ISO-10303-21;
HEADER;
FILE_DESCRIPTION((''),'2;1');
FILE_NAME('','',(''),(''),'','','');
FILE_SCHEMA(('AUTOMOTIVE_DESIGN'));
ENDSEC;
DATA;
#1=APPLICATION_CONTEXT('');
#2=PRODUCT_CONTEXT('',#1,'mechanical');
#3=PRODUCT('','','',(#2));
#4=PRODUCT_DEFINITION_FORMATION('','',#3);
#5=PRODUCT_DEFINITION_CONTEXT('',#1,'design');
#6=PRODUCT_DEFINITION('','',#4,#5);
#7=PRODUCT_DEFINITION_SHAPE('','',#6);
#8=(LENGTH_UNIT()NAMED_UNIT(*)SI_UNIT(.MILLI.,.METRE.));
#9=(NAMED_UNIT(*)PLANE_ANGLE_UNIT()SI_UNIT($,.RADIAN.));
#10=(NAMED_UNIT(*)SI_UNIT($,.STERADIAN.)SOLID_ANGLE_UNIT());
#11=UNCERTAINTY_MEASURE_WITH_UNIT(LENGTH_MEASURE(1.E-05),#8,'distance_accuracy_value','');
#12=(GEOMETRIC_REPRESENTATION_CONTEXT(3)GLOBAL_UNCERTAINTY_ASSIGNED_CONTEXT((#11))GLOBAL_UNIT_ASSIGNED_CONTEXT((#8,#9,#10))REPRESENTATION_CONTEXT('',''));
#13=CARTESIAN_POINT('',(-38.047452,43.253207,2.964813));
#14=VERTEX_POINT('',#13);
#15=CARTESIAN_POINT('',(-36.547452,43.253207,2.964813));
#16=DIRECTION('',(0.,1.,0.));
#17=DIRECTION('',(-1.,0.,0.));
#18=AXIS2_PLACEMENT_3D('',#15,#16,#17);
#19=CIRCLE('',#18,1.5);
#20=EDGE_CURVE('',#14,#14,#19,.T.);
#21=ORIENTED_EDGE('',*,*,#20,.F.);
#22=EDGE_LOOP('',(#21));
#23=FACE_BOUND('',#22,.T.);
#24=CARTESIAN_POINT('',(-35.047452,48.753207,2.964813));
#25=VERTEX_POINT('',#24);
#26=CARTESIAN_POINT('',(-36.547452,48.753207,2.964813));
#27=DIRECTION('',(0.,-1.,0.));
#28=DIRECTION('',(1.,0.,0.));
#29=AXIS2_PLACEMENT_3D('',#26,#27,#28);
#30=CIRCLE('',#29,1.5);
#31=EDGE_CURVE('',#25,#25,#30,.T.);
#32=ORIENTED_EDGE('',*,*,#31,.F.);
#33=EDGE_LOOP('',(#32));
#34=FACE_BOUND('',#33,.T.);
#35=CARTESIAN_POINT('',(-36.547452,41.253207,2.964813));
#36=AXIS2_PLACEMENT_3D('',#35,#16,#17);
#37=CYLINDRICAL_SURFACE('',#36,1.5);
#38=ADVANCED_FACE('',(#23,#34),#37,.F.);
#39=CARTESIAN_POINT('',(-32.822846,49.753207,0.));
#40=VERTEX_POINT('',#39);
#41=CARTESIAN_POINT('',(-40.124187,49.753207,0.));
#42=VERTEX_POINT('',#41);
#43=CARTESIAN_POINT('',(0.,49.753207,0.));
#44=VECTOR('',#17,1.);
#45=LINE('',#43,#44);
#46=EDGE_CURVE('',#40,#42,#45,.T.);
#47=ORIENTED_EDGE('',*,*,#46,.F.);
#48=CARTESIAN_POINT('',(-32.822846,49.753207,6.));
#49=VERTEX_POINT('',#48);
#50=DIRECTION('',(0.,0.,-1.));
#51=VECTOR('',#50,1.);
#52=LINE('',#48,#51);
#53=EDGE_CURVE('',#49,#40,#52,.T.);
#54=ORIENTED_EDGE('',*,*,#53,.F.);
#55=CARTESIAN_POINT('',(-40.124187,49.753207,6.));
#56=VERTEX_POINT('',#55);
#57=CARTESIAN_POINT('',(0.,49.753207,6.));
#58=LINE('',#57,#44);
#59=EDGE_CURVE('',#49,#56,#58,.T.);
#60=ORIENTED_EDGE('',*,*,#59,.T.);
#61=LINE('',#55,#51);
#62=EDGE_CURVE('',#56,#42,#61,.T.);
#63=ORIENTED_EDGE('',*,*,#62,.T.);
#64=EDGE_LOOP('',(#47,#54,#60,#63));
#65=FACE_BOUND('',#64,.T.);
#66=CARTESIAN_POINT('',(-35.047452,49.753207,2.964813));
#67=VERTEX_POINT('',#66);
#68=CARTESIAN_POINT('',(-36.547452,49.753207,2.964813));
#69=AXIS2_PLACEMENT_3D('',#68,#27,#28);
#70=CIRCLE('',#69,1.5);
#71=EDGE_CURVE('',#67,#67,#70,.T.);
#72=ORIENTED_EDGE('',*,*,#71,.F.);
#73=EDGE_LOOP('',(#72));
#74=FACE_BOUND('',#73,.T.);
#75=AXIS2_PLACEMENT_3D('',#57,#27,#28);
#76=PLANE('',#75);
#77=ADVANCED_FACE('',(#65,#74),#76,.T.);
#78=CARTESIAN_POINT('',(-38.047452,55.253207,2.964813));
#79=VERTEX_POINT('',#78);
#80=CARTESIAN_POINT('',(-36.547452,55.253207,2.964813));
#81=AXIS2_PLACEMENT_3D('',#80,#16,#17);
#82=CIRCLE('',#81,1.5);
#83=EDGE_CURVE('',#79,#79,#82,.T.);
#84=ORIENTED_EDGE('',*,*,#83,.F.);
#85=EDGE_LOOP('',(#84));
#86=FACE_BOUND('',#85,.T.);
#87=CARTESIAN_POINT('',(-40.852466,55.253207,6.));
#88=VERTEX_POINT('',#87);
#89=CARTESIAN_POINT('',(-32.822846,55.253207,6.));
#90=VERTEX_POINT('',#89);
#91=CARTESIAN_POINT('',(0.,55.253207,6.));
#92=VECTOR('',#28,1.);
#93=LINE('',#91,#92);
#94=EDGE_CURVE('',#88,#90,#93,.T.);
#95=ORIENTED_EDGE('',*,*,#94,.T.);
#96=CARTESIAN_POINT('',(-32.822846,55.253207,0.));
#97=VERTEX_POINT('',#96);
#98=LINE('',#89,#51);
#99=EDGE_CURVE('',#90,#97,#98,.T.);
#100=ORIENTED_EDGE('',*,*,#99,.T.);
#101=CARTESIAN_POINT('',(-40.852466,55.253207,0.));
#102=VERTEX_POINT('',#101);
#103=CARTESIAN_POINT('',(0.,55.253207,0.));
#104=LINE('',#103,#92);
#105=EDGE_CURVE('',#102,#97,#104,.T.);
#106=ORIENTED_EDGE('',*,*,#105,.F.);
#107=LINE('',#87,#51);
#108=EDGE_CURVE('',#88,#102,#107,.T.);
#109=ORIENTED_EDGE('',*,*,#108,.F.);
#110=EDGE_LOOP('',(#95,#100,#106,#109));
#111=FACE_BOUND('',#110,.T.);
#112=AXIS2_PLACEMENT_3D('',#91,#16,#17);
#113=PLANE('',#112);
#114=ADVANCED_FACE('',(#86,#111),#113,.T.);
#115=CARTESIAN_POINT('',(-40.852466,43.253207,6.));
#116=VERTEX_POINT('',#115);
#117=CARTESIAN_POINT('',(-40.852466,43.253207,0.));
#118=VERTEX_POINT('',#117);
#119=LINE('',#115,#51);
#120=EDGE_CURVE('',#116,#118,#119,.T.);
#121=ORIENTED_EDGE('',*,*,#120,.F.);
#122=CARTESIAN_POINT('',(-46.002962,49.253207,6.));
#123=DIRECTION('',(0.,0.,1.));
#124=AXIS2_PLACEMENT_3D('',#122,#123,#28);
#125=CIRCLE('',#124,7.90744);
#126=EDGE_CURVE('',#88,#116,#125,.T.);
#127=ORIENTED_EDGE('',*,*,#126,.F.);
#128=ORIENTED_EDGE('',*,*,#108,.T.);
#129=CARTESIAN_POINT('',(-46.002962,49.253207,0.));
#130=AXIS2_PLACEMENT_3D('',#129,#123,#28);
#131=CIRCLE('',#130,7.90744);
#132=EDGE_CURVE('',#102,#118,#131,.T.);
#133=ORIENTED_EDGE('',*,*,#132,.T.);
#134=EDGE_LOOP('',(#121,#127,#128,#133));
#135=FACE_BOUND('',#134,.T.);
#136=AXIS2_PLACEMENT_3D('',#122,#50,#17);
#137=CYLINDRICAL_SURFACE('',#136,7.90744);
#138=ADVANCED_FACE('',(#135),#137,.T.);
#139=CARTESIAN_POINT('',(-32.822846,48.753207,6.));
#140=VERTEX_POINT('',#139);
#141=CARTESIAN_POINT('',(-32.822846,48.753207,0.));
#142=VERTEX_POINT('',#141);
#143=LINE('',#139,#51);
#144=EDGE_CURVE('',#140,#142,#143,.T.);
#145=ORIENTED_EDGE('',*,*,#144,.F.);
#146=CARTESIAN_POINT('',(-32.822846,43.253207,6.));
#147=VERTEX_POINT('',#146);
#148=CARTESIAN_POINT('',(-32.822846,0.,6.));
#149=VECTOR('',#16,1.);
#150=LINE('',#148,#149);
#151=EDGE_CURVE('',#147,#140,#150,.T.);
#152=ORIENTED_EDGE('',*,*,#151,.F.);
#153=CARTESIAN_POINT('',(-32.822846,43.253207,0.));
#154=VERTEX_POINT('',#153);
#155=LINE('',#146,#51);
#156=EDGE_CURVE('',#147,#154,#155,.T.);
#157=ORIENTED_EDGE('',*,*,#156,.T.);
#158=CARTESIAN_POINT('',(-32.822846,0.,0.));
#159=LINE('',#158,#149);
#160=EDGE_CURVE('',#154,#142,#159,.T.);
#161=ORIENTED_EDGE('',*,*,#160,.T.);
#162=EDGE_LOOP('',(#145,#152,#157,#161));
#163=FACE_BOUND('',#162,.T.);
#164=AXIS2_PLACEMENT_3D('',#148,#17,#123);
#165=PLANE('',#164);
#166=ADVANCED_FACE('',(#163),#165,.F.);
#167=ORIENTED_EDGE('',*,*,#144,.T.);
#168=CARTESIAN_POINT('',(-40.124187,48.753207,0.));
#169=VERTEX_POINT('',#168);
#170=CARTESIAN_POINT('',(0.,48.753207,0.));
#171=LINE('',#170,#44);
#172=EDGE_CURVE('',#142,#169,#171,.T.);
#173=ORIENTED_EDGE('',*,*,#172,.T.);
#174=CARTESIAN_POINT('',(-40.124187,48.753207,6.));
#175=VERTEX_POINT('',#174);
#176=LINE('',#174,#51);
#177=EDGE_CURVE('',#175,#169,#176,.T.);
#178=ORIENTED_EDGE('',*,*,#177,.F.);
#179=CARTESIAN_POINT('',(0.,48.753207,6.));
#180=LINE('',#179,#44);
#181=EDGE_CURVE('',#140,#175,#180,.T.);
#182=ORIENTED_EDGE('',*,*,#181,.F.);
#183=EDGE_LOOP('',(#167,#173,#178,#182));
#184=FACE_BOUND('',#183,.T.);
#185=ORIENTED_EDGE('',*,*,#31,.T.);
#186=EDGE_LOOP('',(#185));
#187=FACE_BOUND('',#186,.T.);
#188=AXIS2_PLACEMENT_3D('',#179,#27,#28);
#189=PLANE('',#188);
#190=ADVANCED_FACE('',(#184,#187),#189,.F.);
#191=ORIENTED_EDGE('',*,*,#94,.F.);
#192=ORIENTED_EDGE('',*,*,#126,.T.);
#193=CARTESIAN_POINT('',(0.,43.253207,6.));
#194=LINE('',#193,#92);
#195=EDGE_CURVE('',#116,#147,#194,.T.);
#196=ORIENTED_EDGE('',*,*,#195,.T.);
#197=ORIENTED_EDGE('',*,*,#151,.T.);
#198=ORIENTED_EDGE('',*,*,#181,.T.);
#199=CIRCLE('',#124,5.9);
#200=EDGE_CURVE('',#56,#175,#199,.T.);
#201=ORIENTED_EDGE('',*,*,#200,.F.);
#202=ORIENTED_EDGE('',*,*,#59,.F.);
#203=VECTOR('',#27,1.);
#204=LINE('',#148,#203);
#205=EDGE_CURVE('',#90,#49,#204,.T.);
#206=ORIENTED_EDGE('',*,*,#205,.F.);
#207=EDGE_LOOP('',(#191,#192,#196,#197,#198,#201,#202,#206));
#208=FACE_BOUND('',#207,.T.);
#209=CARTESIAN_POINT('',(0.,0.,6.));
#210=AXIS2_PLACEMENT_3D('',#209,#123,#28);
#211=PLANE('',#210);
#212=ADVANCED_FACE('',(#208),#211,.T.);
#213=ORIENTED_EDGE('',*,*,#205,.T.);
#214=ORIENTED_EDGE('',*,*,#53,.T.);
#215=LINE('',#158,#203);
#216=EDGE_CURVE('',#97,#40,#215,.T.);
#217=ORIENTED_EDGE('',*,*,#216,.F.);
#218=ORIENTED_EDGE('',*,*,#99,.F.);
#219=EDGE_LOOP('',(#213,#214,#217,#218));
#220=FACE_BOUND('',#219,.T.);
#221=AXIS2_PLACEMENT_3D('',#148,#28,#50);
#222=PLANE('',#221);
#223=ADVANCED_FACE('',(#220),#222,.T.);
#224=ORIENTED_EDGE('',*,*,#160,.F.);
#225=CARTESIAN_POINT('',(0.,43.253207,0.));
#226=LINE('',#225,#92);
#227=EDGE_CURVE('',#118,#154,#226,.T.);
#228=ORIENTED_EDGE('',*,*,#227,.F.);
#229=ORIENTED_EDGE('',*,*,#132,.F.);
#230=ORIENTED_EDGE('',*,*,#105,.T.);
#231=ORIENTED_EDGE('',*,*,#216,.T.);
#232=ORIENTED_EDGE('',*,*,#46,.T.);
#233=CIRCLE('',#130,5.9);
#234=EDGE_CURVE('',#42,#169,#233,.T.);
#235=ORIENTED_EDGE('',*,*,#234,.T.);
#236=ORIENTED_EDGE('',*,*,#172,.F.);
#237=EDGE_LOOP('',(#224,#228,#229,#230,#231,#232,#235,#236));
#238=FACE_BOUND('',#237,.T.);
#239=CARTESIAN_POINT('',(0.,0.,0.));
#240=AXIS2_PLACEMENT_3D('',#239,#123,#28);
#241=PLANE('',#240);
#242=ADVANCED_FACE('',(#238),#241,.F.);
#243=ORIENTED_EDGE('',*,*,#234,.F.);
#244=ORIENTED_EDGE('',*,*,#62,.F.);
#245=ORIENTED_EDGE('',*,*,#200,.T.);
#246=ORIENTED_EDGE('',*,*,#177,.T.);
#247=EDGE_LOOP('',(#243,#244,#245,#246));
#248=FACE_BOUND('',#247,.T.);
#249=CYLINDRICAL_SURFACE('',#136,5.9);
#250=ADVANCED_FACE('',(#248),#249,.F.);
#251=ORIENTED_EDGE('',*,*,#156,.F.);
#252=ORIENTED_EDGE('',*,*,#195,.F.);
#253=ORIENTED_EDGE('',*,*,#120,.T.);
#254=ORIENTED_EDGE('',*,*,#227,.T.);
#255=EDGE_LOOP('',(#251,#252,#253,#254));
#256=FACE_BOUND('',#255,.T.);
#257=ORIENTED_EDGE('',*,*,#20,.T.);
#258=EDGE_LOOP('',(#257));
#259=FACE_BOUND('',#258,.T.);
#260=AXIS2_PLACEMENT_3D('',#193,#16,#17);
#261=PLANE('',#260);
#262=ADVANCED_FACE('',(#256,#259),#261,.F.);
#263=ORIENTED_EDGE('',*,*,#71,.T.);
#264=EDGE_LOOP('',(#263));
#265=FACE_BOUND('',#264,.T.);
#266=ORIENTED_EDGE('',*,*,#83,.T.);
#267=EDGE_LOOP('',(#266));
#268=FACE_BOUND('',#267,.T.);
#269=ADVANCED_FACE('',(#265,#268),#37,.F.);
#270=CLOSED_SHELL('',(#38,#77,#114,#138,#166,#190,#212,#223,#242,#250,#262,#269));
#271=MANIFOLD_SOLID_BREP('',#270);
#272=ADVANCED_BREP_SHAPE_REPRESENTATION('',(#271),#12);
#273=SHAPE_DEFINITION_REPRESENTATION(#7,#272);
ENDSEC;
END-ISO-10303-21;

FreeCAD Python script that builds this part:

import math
import FreeCAD as App
import Part
import Sketcher

V = App.Vector

doc = App.newDocument("Part")
body = doc.addObject("PartDesign::Body", "Body")

sketch1 = body.newObject("Sketcher::SketchObject", "Sketch")
sketch1.AttachmentSupport = (doc.getObject("XY_Plane"), [""])
sketch1.MapMode = "FlatFace"
sketch1.addGeometry(Part.LineSegment(V(-32.822846, 55.253207, 0), V(-40.852466, 55.253207, 0)), False)
sketch1.addGeometry(Part.ArcOfCircle(Part.Circle(V(-46.002962, 49.253207, 0), V(0, 0, 1), 7.90744), math.radians(49.356678), math.radians(310.643322)), False)
sketch1.addGeometry(Part.LineSegment(V(-40.852466, 43.253207, 0), V(-32.822846, 43.253207, 0)), False)
sketch1.addGeometry(Part.LineSegment(V(-32.822846, 43.253207, 0), V(-32.822846, 48.753207, 0)), False)
sketch1.addGeometry(Part.LineSegment(V(-32.822846, 48.753207, 0), V(-40.124187, 48.753207, 0)), False)
sketch1.addGeometry(Part.ArcOfCircle(Part.Circle(V(-46.002962, 49.253207, 0), V(0, 0, 1), 5.9), math.radians(4.861405), math.radians(355.138595)), False)
sketch1.addGeometry(Part.LineSegment(V(-40.124187, 49.753207, 0), V(-32.822846, 49.753207, 0)), False)
sketch1.addGeometry(Part.LineSegment(V(-32.822846, 49.753207, 0), V(-32.822846, 55.253207, 0)), False)
sketch1.addConstraint(Sketcher.Constraint("Coincident", 0, 2, 1, 1))
sketch1.addConstraint(Sketcher.Constraint("Coincident", 1, 2, 2, 1))
sketch1.addConstraint(Sketcher.Constraint("Coincident", 2, 2, 3, 1))
sketch1.addConstraint(Sketcher.Constraint("Coincident", 3, 2, 4, 1))
sketch1.addConstraint(Sketcher.Constraint("Coincident", 4, 2, 5, 2))
sketch1.addConstraint(Sketcher.Constraint("Coincident", 5, 1, 6, 1))
sketch1.addConstraint(Sketcher.Constraint("Coincident", 6, 2, 7, 1))
sketch1.addConstraint(Sketcher.Constraint("Coincident", 7, 2, 0, 1))
sketch1.addConstraint(Sketcher.Constraint("Horizontal", 0))
sketch1.addConstraint(Sketcher.Constraint("Horizontal", 2))
sketch1.addConstraint(Sketcher.Constraint("Vertical", 3))
sketch1.addConstraint(Sketcher.Constraint("Horizontal", 4))
sketch1.addConstraint(Sketcher.Constraint("Horizontal", 6))
sketch1.addConstraint(Sketcher.Constraint("Vertical", 7))
sketch1.addConstraint(Sketcher.Constraint("Coincident", 5, 3, 1, 3))
sketch1.addConstraint(Sketcher.Constraint("Vertical", 0, 2, 1, 2))
sketch1.addConstraint(Sketcher.Constraint("Vertical", 4, 2, 5, 1))
sketch1.addConstraint(Sketcher.Constraint("Vertical", 3, 2, 6, 2))
sketch1.addConstraint(Sketcher.Constraint("Radius", 5, 5.9))
sketch1.addConstraint(Sketcher.Constraint("DistanceY", 3, 1, 3, 2, 5.5))
sketch1.addConstraint(Sketcher.Constraint("DistanceY", 5, 3, 0, 2, 6.0))
sketch1.addConstraint(Sketcher.Constraint("Radius", 1, 7.90744))
sketch1.addConstraint(Sketcher.Constraint("DistanceX", 0, 2, 0, 1, 8.02962))
sketch1.addConstraint(Sketcher.Constraint("DistanceX", 1, 3, -1, 1, 46.002962))
sketch1.addConstraint(Sketcher.Constraint("DistanceY", -1, 1, 1, 3, 49.253207))
pad1 = body.newObject("PartDesign::Pad", "Pad")
pad1.Profile = sketch1
pad1.Length = 6

sketch2 = body.newObject("Sketcher::SketchObject", "Sketch001")
sketch2.AttachmentSupport = (doc.getObject("XZ_Plane"), [""])
sketch2.MapMode = "FlatFace"
sketch2.AttachmentOffset = App.Placement(V(0, 0, -55.253207), App.Rotation())
sketch2.addGeometry(Part.Circle(V(-36.547452, 2.964813, 0), V(0, 0, 1), 1.5), False)
sketch2.addConstraint(Sketcher.Constraint("Diameter", 0, 3.0))
sketch2.addConstraint(Sketcher.Constraint("DistanceX", 0, 3, -1, 1, 36.547452))
sketch2.addConstraint(Sketcher.Constraint("DistanceY", -1, 1, 0, 3, 2.964813))
pocket1 = body.newObject("PartDesign::Pocket", "Pocket")
pocket1.Profile = sketch2
pocket1.Length = 14
pocket1.Reversed = True

doc.recompute()
